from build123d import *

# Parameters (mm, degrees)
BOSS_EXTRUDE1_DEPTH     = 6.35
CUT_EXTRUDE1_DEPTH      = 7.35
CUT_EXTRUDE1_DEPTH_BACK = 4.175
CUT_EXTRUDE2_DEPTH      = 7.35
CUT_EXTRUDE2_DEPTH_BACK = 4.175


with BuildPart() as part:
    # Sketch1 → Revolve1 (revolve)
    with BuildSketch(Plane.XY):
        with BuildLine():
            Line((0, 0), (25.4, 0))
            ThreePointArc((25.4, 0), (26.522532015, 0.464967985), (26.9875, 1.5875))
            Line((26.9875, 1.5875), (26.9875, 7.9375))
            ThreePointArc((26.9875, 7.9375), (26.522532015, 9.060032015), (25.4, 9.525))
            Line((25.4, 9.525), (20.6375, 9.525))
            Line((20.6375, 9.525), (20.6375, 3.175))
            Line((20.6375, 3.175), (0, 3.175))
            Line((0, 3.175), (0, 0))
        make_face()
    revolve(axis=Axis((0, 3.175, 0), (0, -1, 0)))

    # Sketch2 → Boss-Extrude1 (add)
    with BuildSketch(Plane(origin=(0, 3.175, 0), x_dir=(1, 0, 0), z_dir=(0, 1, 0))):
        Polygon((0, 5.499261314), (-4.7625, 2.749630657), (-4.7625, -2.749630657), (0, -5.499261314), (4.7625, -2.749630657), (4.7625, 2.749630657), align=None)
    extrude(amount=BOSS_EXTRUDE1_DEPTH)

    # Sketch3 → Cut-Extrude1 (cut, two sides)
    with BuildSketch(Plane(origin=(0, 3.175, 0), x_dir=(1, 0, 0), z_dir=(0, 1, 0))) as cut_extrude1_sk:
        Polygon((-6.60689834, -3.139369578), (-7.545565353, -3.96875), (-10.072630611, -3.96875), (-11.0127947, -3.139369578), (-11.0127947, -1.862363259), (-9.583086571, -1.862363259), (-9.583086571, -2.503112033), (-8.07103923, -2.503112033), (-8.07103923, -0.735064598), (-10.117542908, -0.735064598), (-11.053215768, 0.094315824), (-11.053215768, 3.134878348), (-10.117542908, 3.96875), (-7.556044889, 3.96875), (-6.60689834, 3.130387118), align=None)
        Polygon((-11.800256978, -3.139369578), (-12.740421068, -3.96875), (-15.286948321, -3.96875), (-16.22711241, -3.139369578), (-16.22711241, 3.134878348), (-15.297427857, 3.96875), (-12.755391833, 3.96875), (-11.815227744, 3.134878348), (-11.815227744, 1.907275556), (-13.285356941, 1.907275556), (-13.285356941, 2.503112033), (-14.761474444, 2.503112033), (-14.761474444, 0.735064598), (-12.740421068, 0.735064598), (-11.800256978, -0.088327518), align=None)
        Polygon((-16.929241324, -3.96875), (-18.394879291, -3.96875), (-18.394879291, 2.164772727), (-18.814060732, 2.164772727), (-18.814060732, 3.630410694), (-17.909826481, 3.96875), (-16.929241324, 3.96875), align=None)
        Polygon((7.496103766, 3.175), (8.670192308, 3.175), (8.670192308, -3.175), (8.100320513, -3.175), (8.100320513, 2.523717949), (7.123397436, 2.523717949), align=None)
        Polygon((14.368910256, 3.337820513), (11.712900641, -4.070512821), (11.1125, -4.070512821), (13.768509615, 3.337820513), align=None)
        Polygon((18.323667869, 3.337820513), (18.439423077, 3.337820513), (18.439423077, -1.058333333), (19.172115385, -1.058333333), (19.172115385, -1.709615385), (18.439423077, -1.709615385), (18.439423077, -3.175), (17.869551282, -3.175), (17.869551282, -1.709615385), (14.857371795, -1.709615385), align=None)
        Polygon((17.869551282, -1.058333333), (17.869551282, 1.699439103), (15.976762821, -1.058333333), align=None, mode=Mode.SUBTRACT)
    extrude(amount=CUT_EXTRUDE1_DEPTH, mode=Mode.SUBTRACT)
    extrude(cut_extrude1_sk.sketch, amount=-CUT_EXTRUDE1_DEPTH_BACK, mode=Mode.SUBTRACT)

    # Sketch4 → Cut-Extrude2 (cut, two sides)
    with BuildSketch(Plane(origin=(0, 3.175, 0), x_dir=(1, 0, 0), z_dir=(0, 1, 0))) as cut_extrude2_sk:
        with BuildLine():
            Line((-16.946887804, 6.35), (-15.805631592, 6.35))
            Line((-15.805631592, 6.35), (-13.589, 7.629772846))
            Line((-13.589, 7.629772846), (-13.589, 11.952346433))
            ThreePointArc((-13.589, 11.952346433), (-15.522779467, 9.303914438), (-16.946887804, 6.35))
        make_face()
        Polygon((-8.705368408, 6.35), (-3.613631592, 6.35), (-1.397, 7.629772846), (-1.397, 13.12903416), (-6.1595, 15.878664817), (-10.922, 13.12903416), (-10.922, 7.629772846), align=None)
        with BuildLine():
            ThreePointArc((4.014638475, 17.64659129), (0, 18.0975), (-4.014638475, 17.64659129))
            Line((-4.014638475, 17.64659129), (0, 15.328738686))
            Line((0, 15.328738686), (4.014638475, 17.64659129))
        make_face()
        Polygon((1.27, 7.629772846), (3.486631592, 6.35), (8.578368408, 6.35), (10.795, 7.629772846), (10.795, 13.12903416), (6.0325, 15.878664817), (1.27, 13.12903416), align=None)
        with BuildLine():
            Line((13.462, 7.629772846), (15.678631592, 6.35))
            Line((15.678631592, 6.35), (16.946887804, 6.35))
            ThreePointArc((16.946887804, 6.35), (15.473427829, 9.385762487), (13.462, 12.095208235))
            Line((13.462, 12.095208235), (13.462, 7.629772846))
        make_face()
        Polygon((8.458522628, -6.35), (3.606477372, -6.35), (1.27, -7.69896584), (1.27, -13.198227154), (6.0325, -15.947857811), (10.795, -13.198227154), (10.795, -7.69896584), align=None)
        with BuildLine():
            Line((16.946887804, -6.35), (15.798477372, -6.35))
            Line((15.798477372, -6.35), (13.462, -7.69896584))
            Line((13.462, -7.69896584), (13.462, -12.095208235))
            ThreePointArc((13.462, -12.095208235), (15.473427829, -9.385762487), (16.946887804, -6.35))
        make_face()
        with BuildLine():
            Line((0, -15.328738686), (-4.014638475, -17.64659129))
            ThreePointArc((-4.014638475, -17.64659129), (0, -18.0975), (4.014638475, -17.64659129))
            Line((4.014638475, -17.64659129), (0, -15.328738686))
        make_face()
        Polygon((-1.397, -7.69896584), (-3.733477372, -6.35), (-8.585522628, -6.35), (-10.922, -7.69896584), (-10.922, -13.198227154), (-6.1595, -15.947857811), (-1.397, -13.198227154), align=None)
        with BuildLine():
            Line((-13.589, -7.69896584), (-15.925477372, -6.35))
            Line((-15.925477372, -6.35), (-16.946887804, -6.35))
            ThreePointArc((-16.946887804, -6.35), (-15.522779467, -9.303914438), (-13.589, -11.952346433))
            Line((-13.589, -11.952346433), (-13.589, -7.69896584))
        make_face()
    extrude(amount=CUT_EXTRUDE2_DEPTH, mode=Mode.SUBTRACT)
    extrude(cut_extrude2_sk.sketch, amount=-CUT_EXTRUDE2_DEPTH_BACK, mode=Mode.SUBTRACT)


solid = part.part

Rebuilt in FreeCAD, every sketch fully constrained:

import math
import FreeCAD as App
import Part
import Sketcher
from FreeCAD import Vector
Q = App.Units.Quantity

doc = App.newDocument("Part")
params = doc.addObject("Spreadsheet::Sheet", "Params")
for row, (alias, value) in enumerate([
    ("sketch1_width", "1 in"),
    ("sketch1_radius", "0.0625 in"),
    ("sketch1_height", "0.25 in"),
    ("sketch1_width2", "0.1875 in"),
    ("revolution_angle", "360 deg"),
    ("pad1_length", "0.25 in"),
    ("sketch3_height", "0.25 in"),
    ("sketch3_height2", "0.3125 in"),
], start=1):
    params.set(f"A{row}", alias)
    params.set(f"B{row}", "=" + value)
    params.setAlias(f"B{row}", alias)

body = doc.addObject("PartDesign::Body", "Body")
body.AllowCompound = True

# Sketch on XY plane
sketch1 = body.newObject("Sketcher::SketchObject", "Sketch")
sketch1.AttachmentSupport = (doc.getObject("XY_Plane"), [""])
sketch1.MapMode = "FlatFace"
sketch1.addGeometry([
    Part.LineSegment(Vector(0, 0, 0), Vector(25.4, 0, 0)),  # 0
    Part.ArcOfCircle(Part.Circle(Vector(25.4, 1.5875, 0), Vector(0, 0, 1), 1.5875), math.radians(-90), math.radians(0)),  # 1
    Part.LineSegment(Vector(26.9875, 1.5875, 0), Vector(26.9875, 7.9375, 0)),  # 2
    Part.ArcOfCircle(Part.Circle(Vector(25.4, 7.9375, 0), Vector(0, 0, 1), 1.5875), math.radians(0), math.radians(90)),  # 3
    Part.LineSegment(Vector(25.4, 9.525, 0), Vector(20.6375, 9.525, 0)),  # 4
    Part.LineSegment(Vector(20.6375, 9.525, 0), Vector(20.6375, 3.175, 0)),  # 5
    Part.LineSegment(Vector(20.6375, 3.175, 0), Vector(0, 3.175, 0)),  # 6
    Part.LineSegment(Vector(0, 3.175, 0), Vector(0, 0, 0)),  # 7
], False)
sketch1.addConstraint([
    Sketcher.Constraint("Tangent", 0, 2, 1, 1),
    Sketcher.Constraint("Tangent", 1, 2, 2, 1),
    Sketcher.Constraint("Tangent", 2, 2, 3, 1),
    Sketcher.Constraint("Tangent", 3, 2, 4, 1),
    Sketcher.Constraint("Coincident", 4, 2, 5, 1),
    Sketcher.Constraint("Coincident", 5, 2, 6, 1),
    Sketcher.Constraint("Coincident", 6, 2, 7, 1),
    Sketcher.Constraint("Coincident", 7, 2, 0, 1),
    Sketcher.Constraint("Horizontal", 0),
    Sketcher.Constraint("Vertical", 2),
    Sketcher.Constraint("Horizontal", 4),
    Sketcher.Constraint("Vertical", 5),
    Sketcher.Constraint("Horizontal", 6),
    Sketcher.Constraint("Vertical", 7),
    Sketcher.Constraint("Coincident", 7, 2, -1, 1),
    Sketcher.Constraint("Equal", 1, 3),
    Sketcher.Constraint("Equal", 2, 5),
    Sketcher.Constraint("DistanceX", 0, 1, 0, 2, Q("1 in")),
    Sketcher.Constraint("Radius", 1, Q("0.0625 in")),
    Sketcher.Constraint("DistanceY", 2, 1, 2, 2, Q("0.25 in")),
    Sketcher.Constraint("DistanceX", 4, 2, 4, 1, Q("0.1875 in")),
])
sketch1.setExpression("Constraints[17]", "Params.sketch1_width")
sketch1.setExpression("Constraints[18]", "Params.sketch1_radius")
sketch1.setExpression("Constraints[19]", "Params.sketch1_height")
sketch1.setExpression("Constraints[20]", "Params.sketch1_width2")
revolution = body.newObject("PartDesign::Revolution", "Revolution")
revolution.Profile = sketch1
revolution.ReferenceAxis = (sketch1, ["V_Axis"])
revolution.setExpression("Angle", "Params.revolution_angle")

# Sketch on XZ plane
sketch2 = body.newObject("Sketcher::SketchObject", "Sketch001")
sketch2.AttachmentSupport = (doc.getObject("XZ_Plane"), [""])
sketch2.MapMode = "FlatFace"
sketch2.AttachmentOffset = App.Placement(Vector(0, 0, -0.125 * 25.4), App.Rotation())
sketch2.addGeometry([
    Part.LineSegment(Vector(0, -5.499261, 0), Vector(-4.7625, -2.749631, 0)),  # 0
    Part.LineSegment(Vector(-4.7625, -2.749631, 0), Vector(-4.7625, 2.749631, 0)),  # 1
    Part.LineSegment(Vector(-4.7625, 2.749631, 0), Vector(0, 5.499261, 0)),  # 2
    Part.LineSegment(Vector(0, 5.499261, 0), Vector(4.7625, 2.749631, 0)),  # 3
    Part.LineSegment(Vector(4.7625, 2.749631, 0), Vector(4.7625, -2.749631, 0)),  # 4
    Part.LineSegment(Vector(4.7625, -2.749631, 0), Vector(0, -5.499261, 0)),  # 5
], False)
sketch2.addConstraint([
    Sketcher.Constraint("Coincident", 0, 2, 1, 1),
    Sketcher.Constraint("Coincident", 1, 2, 2, 1),
    Sketcher.Constraint("Coincident", 2, 2, 3, 1),
    Sketcher.Constraint("Coincident", 3, 2, 4, 1),
    Sketcher.Constraint("Coincident", 4, 2, 5, 1),
    Sketcher.Constraint("Coincident", 5, 2, 0, 1),
    Sketcher.Constraint("Vertical", 1),
    Sketcher.Constraint("Vertical", 4),
    Sketcher.Constraint("Symmetric", 0, 2, 3, 2, -1, 1),
    Sketcher.Constraint("Symmetric", 2, 2, 5, 2, -1, 1),
    Sketcher.Constraint("PointOnObject", 2, 2, -2),
    Sketcher.Constraint("Parallel", 2, 5),
    Sketcher.Constraint("Horizontal", 1, 2, 3, 2),
    Sketcher.Constraint("Angle", 0, Q("150 deg")),
    Sketcher.Constraint("DistanceX", 0, 2, -1, 1, Q("0.1875 in")),
    Sketcher.Constraint("DistanceY", 1, 1, 1, 2, Q("5.499261 mm")),
])
pad1 = body.newObject("PartDesign::Pad", "Pad")
pad1.Profile = sketch2
pad1.setExpression("Length", "Params.pad1_length")
pad1.Reversed = True

# Sketch on XZ plane
sketch3 = body.newObject("Sketcher::SketchObject", "Sketch002")
sketch3.AttachmentSupport = (doc.getObject("XZ_Plane"), [""])
sketch3.MapMode = "FlatFace"
sketch3.AttachmentOffset = App.Placement(Vector(0, 0, -0.125 * 25.4), App.Rotation())
sketch3.addGeometry([
    Part.LineSegment(Vector(-7.545565, 3.96875, 0), Vector(-6.606898, 3.13937, 0)),  # 0
    Part.LineSegment(Vector(-6.606898, 3.13937, 0), Vector(-6.606898, -3.130387, 0)),  # 1
    Part.LineSegment(Vector(-6.606898, -3.130387, 0), Vector(-7.556045, -3.96875, 0)),  # 2
    Part.LineSegment(Vector(-7.556045, -3.96875, 0), Vector(-10.117543, -3.96875, 0)),  # 3
    Part.LineSegment(Vector(-10.117543, -3.96875, 0), Vector(-11.053216, -3.134878, 0)),  # 4
    Part.LineSegment(Vector(-11.053216, -3.134878, 0), Vector(-11.053216, -0.094316, 0)),  # 5
    Part.LineSegment(Vector(-11.053216, -0.094316, 0), Vector(-10.117543, 0.735065, 0)),  # 6
    Part.LineSegment(Vector(-10.117543, 0.735065, 0), Vector(-8.071039, 0.735065, 0)),  # 7
    Part.LineSegment(Vector(-8.071039, 0.735065, 0), Vector(-8.071039, 2.503112, 0)),  # 8
    Part.LineSegment(Vector(-8.071039, 2.503112, 0), Vector(-9.583087, 2.503112, 0)),  # 9
    Part.LineSegment(Vector(-9.583087, 2.503112, 0), Vector(-9.583087, 1.862363, 0)),  # 10
    Part.LineSegment(Vector(-9.583087, 1.862363, 0), Vector(-11.012795, 1.862363, 0)),  # 11
    Part.LineSegment(Vector(-11.012795, 1.862363, 0), Vector(-11.012795, 3.13937, 0)),  # 12
    Part.LineSegment(Vector(-11.012795, 3.13937, 0), Vector(-10.072631, 3.96875, 0)),  # 13
    Part.LineSegment(Vector(-10.072631, 3.96875, 0), Vector(-7.545565, 3.96875, 0)),  # 14
    Part.LineSegment(Vector(-12.740421, 3.96875, 0), Vector(-11.800257, 3.13937, 0)),  # 15
    Part.LineSegment(Vector(-11.800257, 3.13937, 0), Vector(-11.800257, 0.088328, 0)),  # 16
    Part.LineSegment(Vector(-11.800257, 0.088328, 0), Vector(-12.740421, -0.735065, 0)),  # 17
    Part.LineSegment(Vector(-12.740421, -0.735065, 0), Vector(-14.761474, -0.735065, 0)),  # 18
    Part.LineSegment(Vector(-14.761474, -0.735065, 0), Vector(-14.761474, -2.503112, 0)),  # 19
    Part.LineSegment(Vector(-14.761474, -2.503112, 0), Vector(-13.285357, -2.503112, 0)),  # 20
    Part.LineSegment(Vector(-13.285357, -2.503112, 0), Vector(-13.285357, -1.907276, 0)),  # 21
    Part.LineSegment(Vector(-13.285357, -1.907276, 0), Vector(-11.815228, -1.907276, 0)),  # 22
    Part.LineSegment(Vector(-11.815228, -1.907276, 0), Vector(-11.815228, -3.134878, 0)),  # 23
    Part.LineSegment(Vector(-11.815228, -3.134878, 0), Vector(-12.755392, -3.96875, 0)),  # 24
    Part.LineSegment(Vector(-12.755392, -3.96875, 0), Vector(-15.297428, -3.96875, 0)),  # 25
    Part.LineSegment(Vector(-15.297428, -3.96875, 0), Vector(-16.227112, -3.134878, 0)),  # 26
    Part.LineSegment(Vector(-16.227112, -3.134878, 0), Vector(-16.227112, 3.13937, 0)),  # 27
    Part.LineSegment(Vector(-16.227112, 3.13937, 0), Vector(-15.286948, 3.96875, 0)),  # 28
    Part.LineSegment(Vector(-15.286948, 3.96875, 0), Vector(-12.740421, 3.96875, 0)),  # 29
    Part.LineSegment(Vector(-18.394879, 3.96875, 0), Vector(-16.929241, 3.96875, 0)),  # 30
    Part.LineSegment(Vector(-16.929241, 3.96875, 0), Vector(-16.929241, -3.96875, 0)),  # 31
    Part.LineSegment(Vector(-16.929241, -3.96875, 0), Vector(-17.909826, -3.96875, 0)),  # 32
    Part.LineSegment(Vector(-17.909826, -3.96875, 0), Vector(-18.814061, -3.630411, 0)),  # 33
    Part.LineSegment(Vector(-18.814061, -3.630411, 0), Vector(-18.814061, -2.164773, 0)),  # 34
    Part.LineSegment(Vector(-18.814061, -2.164773, 0), Vector(-18.394879, -2.164773, 0)),  # 35
    Part.LineSegment(Vector(-18.394879, -2.164773, 0), Vector(-18.394879, 3.96875, 0)),  # 36
    Part.LineSegment(Vector(8.670192, -3.175, 0), Vector(7.496104, -3.175, 0)),  # 37
    Part.LineSegment(Vector(7.496104, -3.175, 0), Vector(7.123397, -2.523718, 0)),  # 38
    Part.LineSegment(Vector(7.123397, -2.523718, 0), Vector(8.100321, -2.523718, 0)),  # 39
    Part.LineSegment(Vector(8.100321, -2.523718, 0), Vector(8.100321, 3.175, 0)),  # 40
    Part.LineSegment(Vector(8.100321, 3.175, 0), Vector(8.670192, 3.175, 0)),  # 41
    Part.LineSegment(Vector(8.670192, 3.175, 0), Vector(8.670192, -3.175, 0)),  # 42
    Part.LineSegment(Vector(11.712901, 4.070513, 0), Vector(14.36891, -3.337821, 0)),  # 43
    Part.LineSegment(Vector(14.36891, -3.337821, 0), Vector(13.76851, -3.337821, 0)),  # 44
    Part.LineSegment(Vector(13.76851, -3.337821, 0), Vector(11.1125, 4.070513, 0)),  # 45
    Part.LineSegment(Vector(11.1125, 4.070513, 0), Vector(11.712901, 4.070513, 0)),  # 46
    Part.LineSegment(Vector(18.439423, -3.337821, 0), Vector(18.323668, -3.337821, 0)),  # 47
    Part.LineSegment(Vector(18.323668, -3.337821, 0), Vector(14.857372, 1.709615, 0)),  # 48
    Part.LineSegment(Vector(14.857372, 1.709615, 0), Vector(17.869551, 1.709615, 0)),  # 49
    Part.LineSegment(Vector(17.869551, 1.709615, 0), Vector(17.869551, 3.175, 0)),  # 50
    Part.LineSegment(Vector(17.869551, 3.175, 0), Vector(18.439423, 3.175, 0)),  # 51
    Part.LineSegment(Vector(18.439423, 3.175, 0), Vector(18.439423, 1.709615, 0)),  # 52
    Part.LineSegment(Vector(18.439423, 1.709615, 0), Vector(19.172115, 1.709615, 0)),  # 53
    Part.LineSegment(Vector(19.172115, 1.709615, 0), Vector(19.172115, 1.058333, 0)),  # 54
    Part.LineSegment(Vector(19.172115, 1.058333, 0), Vector(18.439423, 1.058333, 0)),  # 55
    Part.LineSegment(Vector(18.439423, 1.058333, 0), Vector(18.439423, -3.337821, 0)),  # 56
    Part.LineSegment(Vector(17.869551, 1.058333, 0), Vector(15.976763, 1.058333, 0)),  # 57
    Part.LineSegment(Vector(15.976763, 1.058333, 0), Vector(17.869551, -1.699439, 0)),  # 58
    Part.LineSegment(Vector(17.869551, -1.699439, 0), Vector(17.869551, 1.058333, 0)),  # 59
], False)
sketch3.addConstraint([
    Sketcher.Constraint("Coincident", 0, 2, 1, 1),
    Sketcher.Constraint("Coincident", 1, 2, 2, 1),
    Sketcher.Constraint("Coincident", 2, 2, 3, 1),
    Sketcher.Constraint("Coincident", 3, 2, 4, 1),
    Sketcher.Constraint("Coincident", 4, 2, 5, 1),
    Sketcher.Constraint("Coincident", 5, 2, 6, 1),
    Sketcher.Constraint("Coincident", 6, 2, 7, 1),
    Sketcher.Constraint("Coincident", 7, 2, 8, 1),
    Sketcher.Constraint("Coincident", 8, 2, 9, 1),
    Sketcher.Constraint("Coincident", 9, 2, 10, 1),
    Sketcher.Constraint("Coincident", 10, 2, 11, 1),
    Sketcher.Constraint("Coincident", 11, 2, 12, 1),
    Sketcher.Constraint("Coincident", 12, 2, 13, 1),
    Sketcher.Constraint("Coincident", 13, 2, 14, 1),
    Sketcher.Constraint("Coincident", 14, 2, 0, 1),
    Sketcher.Constraint("Coincident", 15, 2, 16, 1),
    Sketcher.Constraint("Coincident", 16, 2, 17, 1),
    Sketcher.Constraint("Coincident", 17, 2, 18, 1),
    Sketcher.Constraint("Coincident", 18, 2, 19, 1),
    Sketcher.Constraint("Coincident", 19, 2, 20, 1),
    Sketcher.Constraint("Coincident", 20, 2, 21, 1),
    Sketcher.Constraint("Coincident", 21, 2, 22, 1),
    Sketcher.Constraint("Coincident", 22, 2, 23, 1),
    Sketcher.Constraint("Coincident", 23, 2, 24, 1),
    Sketcher.Constraint("Coincident", 24, 2, 25, 1),
    Sketcher.Constraint("Coincident", 25, 2, 26, 1),
    Sketcher.Constraint("Coincident", 26, 2, 27, 1),
    Sketcher.Constraint("Coincident", 27, 2, 28, 1),
    Sketcher.Constraint("Coincident", 28, 2, 29, 1),
    Sketcher.Constraint("Coincident", 29, 2, 15, 1),
    Sketcher.Constraint("Coincident", 30, 2, 31, 1),
    Sketcher.Constraint("Coincident", 31, 2, 32, 1),
    Sketcher.Constraint("Coincident", 32, 2, 33, 1),
    Sketcher.Constraint("Coincident", 33, 2, 34, 1),
    Sketcher.Constraint("Coincident", 34, 2, 35, 1),
    Sketcher.Constraint("Coincident", 35, 2, 36, 1),
    Sketcher.Constraint("Coincident", 36, 2, 30, 1),
    Sketcher.Constraint("Coincident", 37, 2, 38, 1),
    Sketcher.Constraint("Coincident", 38, 2, 39, 1),
    Sketcher.Constraint("Coincident", 39, 2, 40, 1),
    Sketcher.Constraint("Coincident", 40, 2, 41, 1),
    Sketcher.Constraint("Coincident", 41, 2, 42, 1),
    Sketcher.Constraint("Coincident", 42, 2, 37, 1),
    Sketcher.Constraint("Coincident", 43, 2, 44, 1),
    Sketcher.Constraint("Coincident", 44, 2, 45, 1),
    Sketcher.Constraint("Coincident", 45, 2, 46, 1),
    Sketcher.Constraint("Coincident", 46, 2, 43, 1),
    Sketcher.Constraint("Coincident", 47, 2, 48, 1),
    Sketcher.Constraint("Coincident", 48, 2, 49, 1),
    Sketcher.Constraint("Coincident", 49, 2, 50, 1),
    Sketcher.Constraint("Coincident", 50, 2, 51, 1),
    Sketcher.Constraint("Coincident", 51, 2, 52, 1),
    Sketcher.Constraint("Coincident", 52, 2, 53, 1),
    Sketcher.Constraint("Coincident", 53, 2, 54, 1),
    Sketcher.Constraint("Coincident", 54, 2, 55, 1),
    Sketcher.Constraint("Coincident", 55, 2, 56, 1),
    Sketcher.Constraint("Coincident", 56, 2, 47, 1),
    Sketcher.Constraint("Coincident", 57, 2, 58, 1),
    Sketcher.Constraint("Coincident", 58, 2, 59, 1),
    Sketcher.Constraint("Coincident", 59, 2, 57, 1),
    Sketcher.Constraint("Vertical", 1),
    Sketcher.Constraint("Horizontal", 3),
    Sketcher.Constraint("Vertical", 5),
    Sketcher.Constraint("Horizontal", 7),
    Sketcher.Constraint("Vertical", 8),
    Sketcher.Constraint("Horizontal", 9),
    Sketcher.Constraint("Vertical", 10),
    Sketcher.Constraint("Horizontal", 11),
    Sketcher.Constraint("Vertical", 12),
    Sketcher.Constraint("Horizontal", 14),
    Sketcher.Constraint("Vertical", 16),
    Sketcher.Constraint("Horizontal", 18),
    Sketcher.Constraint("Vertical", 19),
    Sketcher.Constraint("Horizontal", 20),
    Sketcher.Constraint("Vertical", 21),
    Sketcher.Constraint("Horizontal", 22),
    Sketcher.Constraint("Vertical", 23),
    Sketcher.Constraint("Horizontal", 25),
    Sketcher.Constraint("Vertical", 27),
    Sketcher.Constraint("Horizontal", 29),
    Sketcher.Constraint("Horizontal", 30),
    Sketcher.Constraint("Vertical", 31),
    Sketcher.Constraint("Horizontal", 32),
    Sketcher.Constraint("Vertical", 34),
    Sketcher.Constraint("Horizontal", 35),
    Sketcher.Constraint("Vertical", 36),
    Sketcher.Constraint("Horizontal", 37),
    Sketcher.Constraint("Horizontal", 39),
    Sketcher.Constraint("Vertical", 40),
    Sketcher.Constraint("Horizontal", 41),
    Sketcher.Constraint("Vertical", 42),
    Sketcher.Constraint("Horizontal", 44),
    Sketcher.Constraint("Horizontal", 46),
    Sketcher.Constraint("Horizontal", 47),
    Sketcher.Constraint("Horizontal", 49),
    Sketcher.Constraint("Vertical", 50),
    Sketcher.Constraint("Horizontal", 51),
    Sketcher.Constraint("Vertical", 52),
    Sketcher.Constraint("Horizontal", 53),
    Sketcher.Constraint("Vertical", 54),
    Sketcher.Constraint("Horizontal", 55),
    Sketcher.Constraint("Vertical", 56),
    Sketcher.Constraint("Horizontal", 57),
    Sketcher.Constraint("Vertical", 59),
    Sketcher.Constraint("Parallel", 13, 28),
    Sketcher.Constraint("Parallel", 43, 45),
    Sketcher.Constraint("Horizontal", 0, 2, 12, 2),
    Sketcher.Constraint("Horizontal", 12, 2, 15, 2),
    Sketcher.Constraint("Horizontal", 4, 2, 23, 2),
    Sketcher.Constraint("Horizontal", 3, 2, 24, 2),
    Sketcher.Constraint("Horizontal", 23, 2, 26, 2),
    Sketcher.Constraint("Horizontal", 15, 2, 27, 2),
    Sketcher.Constraint("Horizontal", 14, 2, 28, 2),
    Sketcher.Constraint("Horizontal", 29, 2, 30, 2),
    Sketcher.Constraint("Horizontal", 25, 2, 31, 2),
    Sketcher.Constraint("Horizontal", 44, 2, 47, 2),
    Sketcher.Constraint("Horizontal", 41, 2, 50, 2),
    Sketcher.Constraint("Horizontal", 49, 2, 52, 2),
    Sketcher.Constraint("Horizontal", 55, 2, 57, 2),
    Sketcher.Constraint("Vertical", 3, 2, 6, 2),
    Sketcher.Constraint("Vertical", 17, 2, 29, 2),
    Sketcher.Constraint("Vertical", 52, 2, 55, 2),
    Sketcher.Constraint("Vertical", 50, 2, 58, 2),
    Sketcher.Constraint("Equal", 41, 51),
    Sketcher.Constraint("Equal", 8, 19),
    Sketcher.Constraint("Equal", 30, 34),
    Sketcher.Constraint("Equal", 13, 15),
    Sketcher.Constraint("DistanceY", 42, 2, 42, 1, Q("0.25 in")),
    Sketcher.Constraint("DistanceY", 31, 2, 31, 1, Q("0.3125 in")),
    Sketcher.Constraint("DistanceY", 2, 2, -1, 1, Q("0.15625 in")),
    Sketcher.Constraint("DistanceY", 37, 2, -1, 1, Q("0.125 in")),
    Sketcher.Constraint("DistanceX", -1, 1, 45, 2, Q("0.4375 in")),
    Sketcher.Constraint("DistanceX", 3, 2, 3, 1, Q("2.561498 mm")),
    Sketcher.Constraint("DistanceX", 44, 2, 44, 1, Q("0.600401 mm")),
    Sketcher.Constraint("DistanceX", 11, 2, 11, 1, Q("1.429708 mm")),
    Sketcher.Constraint("DistanceX", 22, 1, 22, 2, Q("1.470129 mm")),
    Sketcher.Constraint("DistanceX", 35, 1, 35, 2, Q("0.419181 mm")),
    Sketcher.Constraint("DistanceX", 37, 2, 37, 1, Q("1.174089 mm")),
    Sketcher.Constraint("DistanceX", 41, 1, 41, 2, Q("0.569872 mm")),
    Sketcher.Constraint("DistanceX", 49, 1, 49, 2, Q("3.012179 mm")),
    Sketcher.Constraint("DistanceX", 57, 2, 57, 1, Q("1.892788 mm")),
    Sketcher.Constraint("DistanceY", 10, 2, 10, 1, Q("0.640749 mm")),
    Sketcher.Constraint("DistanceX", 0, 2, -1, 1, Q("6.606898 mm")),
    Sketcher.Constraint("DistanceY", 1, 2, 8, 2, Q("5.633499 mm")),
    Sketcher.Constraint("DistanceY", 6, 2, 10, 2, Q("1.127299 mm")),
    Sketcher.Constraint("DistanceX", 20, 2, 16, 2, Q("1.4851 mm")),
    Sketcher.Constraint("DistanceX", 32, 2, 25, 2, Q("2.612399 mm")),
    Sketcher.Constraint("DistanceY", 33, 2, 19, 2, Q("1.127299 mm")),
    Sketcher.Constraint("Distance", 26, Q("1.248862 mm")),
    Sketcher.Constraint("Distance", 33, Q("0.96546 mm")),
    Sketcher.Constraint("Distance", 58, Q("3.34484 mm")),
    Sketcher.Constraint("DistanceX", 7, 1, 7, 2, Q("2.046504 mm")),
    Sketcher.Constraint("DistanceX", 9, 2, 9, 1, Q("1.512047 mm")),
    Sketcher.Constraint("DistanceX", 14, 1, 14, 2, Q("2.527065 mm")),
    Sketcher.Constraint("DistanceX", 18, 2, 18, 1, Q("2.021053 mm")),
    Sketcher.Constraint("DistanceX", 20, 1, 20, 2, Q("1.476118 mm")),
    Sketcher.Constraint("DistanceX", 25, 2, 25, 1, Q("2.542036 mm")),
    Sketcher.Constraint("DistanceX", 29, 1, 29, 2, Q("2.546527 mm")),
    Sketcher.Constraint("DistanceX", 30, 1, 30, 2, Q("1.465638 mm")),
    Sketcher.Constraint("DistanceX", 32, 2, 32, 1, Q("0.980585 mm")),
    Sketcher.Constraint("DistanceX", 39, 1, 39, 2, Q("0.976923 mm")),
    Sketcher.Constraint("DistanceX", 47, 2, 47, 1, Q("0.115755 mm")),
    Sketcher.Constraint("DistanceX", 53, 1, 53, 2, Q("0.732692 mm")),
    Sketcher.Constraint("DistanceY", 1, 2, 1, 1, Q("6.269757 mm")),
    Sketcher.Constraint("DistanceY", 5, 1, 5, 2, Q("3.040563 mm")),
    Sketcher.Constraint("DistanceY", 16, 2, 16, 1, Q("3.051042 mm")),
    Sketcher.Constraint("DistanceY", 21, 1, 21, 2, Q("0.595836 mm")),
    Sketcher.Constraint("DistanceY", 23, 2, 23, 1, Q("1.227603 mm")),
    Sketcher.Constraint("DistanceY", 27, 1, 27, 2, Q("6.274248 mm")),
    Sketcher.Constraint("DistanceY", 40, 1, 40, 2, Q("5.698718 mm")),
    Sketcher.Constraint("DistanceY", 50, 1, 50, 2, Q("1.465385 mm")),
    Sketcher.Constraint("DistanceY", 54, 2, 54, 1, Q("0.651282 mm")),
    Sketcher.Constraint("DistanceY", 56, 2, 56, 1, Q("4.396154 mm")),
    Sketcher.Constraint("DistanceX", 7, 2, -1, 1, Q("8.071039 mm")),
    Sketcher.Constraint("DistanceX", 17, 2, -1, 1, Q("12.740421 mm")),
    Sketcher.Constraint("DistanceX", -1, 1, 39, 2, Q("8.100321 mm")),
    Sketcher.Constraint("DistanceX", -1, 1, 43, 2, Q("14.36891 mm")),
    Sketcher.Constraint("DistanceX", -1, 1, 48, 2, Q("14.857372 mm")),
    Sketcher.Constraint("DistanceX", 4, 2, 2, 2, Q("3.497171 mm")),
    Sketcher.Constraint("DistanceY", 39, 2, 45, 2, Q("6.594231 mm")),
])
sketch3.setExpression("Constraints[127]", "Params.sketch3_height")
sketch3.setExpression("Constraints[128]", "Params.sketch3_height2")
pocket1 = body.newObject("PartDesign::Pocket", "Pocket")
pocket1.Profile = sketch3
pocket1.Type = "ThroughAll"
pocket1.Midplane = True

# Sketch on XZ plane
sketch4 = body.newObject("Sketcher::SketchObject", "Sketch003")
sketch4.AttachmentSupport = (doc.getObject("XZ_Plane"), [""])
sketch4.MapMode = "FlatFace"
sketch4.AttachmentOffset = App.Placement(Vector(0, 0, -0.125 * 25.4), App.Rotation())
sketch4.addGeometry([
    Part.LineSegment(Vector(-16.946888, -6.35, 0), Vector(-15.805632, -6.35, 0)),  # 0
    Part.LineSegment(Vector(-15.805632, -6.35, 0), Vector(-13.589, -7.629773, 0)),  # 1
    Part.LineSegment(Vector(-13.589, -7.629773, 0), Vector(-13.589, -11.952346, 0)),  # 2
    Part.ArcOfCircle(Part.Circle(Vector(0, 0, 0), Vector(0, 0, 1), 18.0975), math.radians(-159.459022), math.radians(-138.66642)),  # 3
    Part.LineSegment(Vector(-8.705368, -6.35, 0), Vector(-3.613632, -6.35, 0)),  # 4
    Part.LineSegment(Vector(-3.613632, -6.35, 0), Vector(-1.397, -7.629773, 0)),  # 5
    Part.LineSegment(Vector(-1.397, -7.629773, 0), Vector(-1.397, -13.129034, 0)),  # 6
    Part.LineSegment(Vector(-1.397, -13.129034, 0), Vector(-6.1595, -15.878665, 0)),  # 7
    Part.LineSegment(Vector(-6.1595, -15.878665, 0), Vector(-10.922, -13.129034, 0)),  # 8
    Part.LineSegment(Vector(-10.922, -13.129034, 0), Vector(-10.922, -7.629773, 0)),  # 9
    Part.LineSegment(Vector(-10.922, -7.629773, 0), Vector(-8.705368, -6.35, 0)),  # 10
    Part.ArcOfCircle(Part.Circle(Vector(0, 0, 0), Vector(0, 0, 1), 18.0975), math.radians(-102.816768), math.radians(-77.183232)),  # 11
    Part.LineSegment(Vector(-4.014638, -17.646591, 0), Vector(0, -15.328739, 0)),  # 12
    Part.LineSegment(Vector(0, -15.328739, 0), Vector(4.014638, -17.646591, 0)),  # 13
    Part.LineSegment(Vector(1.27, -7.629773, 0), Vector(3.486632, -6.35, 0)),  # 14
    Part.LineSegment(Vector(3.486632, -6.35, 0), Vector(8.578368, -6.35, 0)),  # 15
    Part.LineSegment(Vector(8.578368, -6.35, 0), Vector(10.795, -7.629773, 0)),  # 16
    Part.LineSegment(Vector(10.795, -7.629773, 0), Vector(10.795, -13.129034, 0)),  # 17
    Part.LineSegment(Vector(10.795, -13.129034, 0), Vector(6.0325, -15.878665, 0)),  # 18
    Part.LineSegment(Vector(6.0325, -15.878665, 0), Vector(1.27, -13.129034, 0)),  # 19
    Part.LineSegment(Vector(1.27, -13.129034, 0), Vector(1.27, -7.629773, 0)),  # 20
    Part.LineSegment(Vector(13.462, -7.629773, 0), Vector(15.678632, -6.35, 0)),  # 21
    Part.LineSegment(Vector(15.678632, -6.35, 0), Vector(16.946888, -6.35, 0)),  # 22
    Part.ArcOfCircle(Part.Circle(Vector(0, 0, 0), Vector(0, 0, 1), 18.0975), math.radians(-41.938755), math.radians(-20.540978)),  # 23
    Part.LineSegment(Vector(13.462, -12.095208, 0), Vector(13.462, -7.629773, 0)),  # 24
    Part.LineSegment(Vector(8.458523, 6.35, 0), Vector(3.606477, 6.35, 0)),  # 25
    Part.LineSegment(Vector(3.606477, 6.35, 0), Vector(1.27, 7.698966, 0)),  # 26
    Part.LineSegment(Vector(1.27, 7.698966, 0), Vector(1.27, 13.198227, 0)),  # 27
    Part.LineSegment(Vector(1.27, 13.198227, 0), Vector(6.0325, 15.947858, 0)),  # 28
    Part.LineSegment(Vector(6.0325, 15.947858, 0), Vector(10.795, 13.198227, 0)),  # 29
    Part.LineSegment(Vector(10.795, 13.198227, 0), Vector(10.795, 7.698966, 0)),  # 30
    Part.LineSegment(Vector(10.795, 7.698966, 0), Vector(8.458523, 6.35, 0)),  # 31
    Part.LineSegment(Vector(16.946888, 6.35, 0), Vector(15.798477, 6.35, 0)),  # 32
    Part.LineSegment(Vector(15.798477, 6.35, 0), Vector(13.462, 7.698966, 0)),  # 33
    Part.LineSegment(Vector(13.462, 7.698966, 0), Vector(13.462, 12.095208, 0)),  # 34
    Part.ArcOfCircle(Part.Circle(Vector(0, 0, 0), Vector(0, 0, 1), 18.0975), math.radians(20.540978), math.radians(41.938755)),  # 35
    Part.LineSegment(Vector(0, 15.328739, 0), Vector(-4.014638, 17.646591, 0)),  # 36
    Part.ArcOfCircle(Part.Circle(Vector(0, 0, 0), Vector(0, 0, 1), 18.0975), math.radians(77.183232), math.radians(102.816768)),  # 37
    Part.LineSegment(Vector(4.014638, 17.646591, 0), Vector(0, 15.328739, 0)),  # 38
    Part.LineSegment(Vector(-1.397, 7.698966, 0), Vector(-3.733477, 6.35, 0)),  # 39
    Part.LineSegment(Vector(-3.733477, 6.35, 0), Vector(-8.585523, 6.35, 0)),  # 40
    Part.LineSegment(Vector(-8.585523, 6.35, 0), Vector(-10.922, 7.698966, 0)),  # 41
    Part.LineSegment(Vector(-10.922, 7.698966, 0), Vector(-10.922, 13.198227, 0)),  # 42
    Part.LineSegment(Vector(-10.922, 13.198227, 0), Vector(-6.1595, 15.947858, 0)),  # 43
    Part.LineSegment(Vector(-6.1595, 15.947858, 0), Vector(-1.397, 13.198227, 0)),  # 44
    Part.LineSegment(Vector(-1.397, 13.198227, 0), Vector(-1.397, 7.698966, 0)),  # 45
    Part.LineSegment(Vector(-13.589, 7.698966, 0), Vector(-15.925477, 6.35, 0)),  # 46
    Part.LineSegment(Vector(-15.925477, 6.35, 0), Vector(-16.946888, 6.35, 0)),  # 47
    Part.ArcOfCircle(Part.Circle(Vector(0, 0, 0), Vector(0, 0, 1), 18.0975), math.radians(138.66642), math.radians(159.459022)),  # 48
    Part.LineSegment(Vector(-13.589, 11.952346, 0), Vector(-13.589, 7.698966, 0)),  # 49
], False)
sketch4.addConstraint([
    Sketcher.Constraint("Coincident", 0, 2, 1, 1),
    Sketcher.Constraint("Coincident", 1, 2, 2, 1),
    Sketcher.Constraint("Coincident", 2, 2, 3, 2),
    Sketcher.Constraint("Coincident", 3, 1, 0, 1),
    Sketcher.Constraint("Coincident", 4, 2, 5, 1),
    Sketcher.Constraint("Coincident", 5, 2, 6, 1),
    Sketcher.Constraint("Coincident", 6, 2, 7, 1),
    Sketcher.Constraint("Coincident", 7, 2, 8, 1),
    Sketcher.Constraint("Coincident", 8, 2, 9, 1),
    Sketcher.Constraint("Coincident", 9, 2, 10, 1),
    Sketcher.Constraint("Coincident", 10, 2, 4, 1),
    Sketcher.Constraint("Coincident", 11, 1, 12, 1),
    Sketcher.Constraint("Coincident", 12, 2, 13, 1),
    Sketcher.Constraint("Coincident", 13, 2, 11, 2),
    Sketcher.Constraint("Coincident", 14, 2, 15, 1),
    Sketcher.Constraint("Coincident", 15, 2, 16, 1),
    Sketcher.Constraint("Coincident", 16, 2, 17, 1),
    Sketcher.Constraint("Coincident", 17, 2, 18, 1),
    Sketcher.Constraint("Coincident", 18, 2, 19, 1),
    Sketcher.Constraint("Coincident", 19, 2, 20, 1),
    Sketcher.Constraint("Coincident", 20, 2, 14, 1),
    Sketcher.Constraint("Coincident", 21, 2, 22, 1),
    Sketcher.Constraint("Coincident", 22, 2, 23, 2),
    Sketcher.Constraint("Coincident", 23, 1, 24, 1),
    Sketcher.Constraint("Coincident", 24, 2, 21, 1),
    Sketcher.Constraint("Coincident", 25, 2, 26, 1),
    Sketcher.Constraint("Coincident", 26, 2, 27, 1),
    Sketcher.Constraint("Coincident", 27, 2, 28, 1),
    Sketcher.Constraint("Coincident", 28, 2, 29, 1),
    Sketcher.Constraint("Coincident", 29, 2, 30, 1),
    Sketcher.Constraint("Coincident", 30, 2, 31, 1),
    Sketcher.Constraint("Coincident", 31, 2, 25, 1),
    Sketcher.Constraint("Coincident", 32, 2, 33, 1),
    Sketcher.Constraint("Coincident", 33, 2, 34, 1),
    Sketcher.Constraint("Coincident", 34, 2, 35, 2),
    Sketcher.Constraint("Coincident", 35, 1, 32, 1),
    Sketcher.Constraint("Coincident", 36, 2, 37, 2),
    Sketcher.Constraint("Coincident", 37, 1, 38, 1),
    Sketcher.Constraint("Coincident", 38, 2, 36, 1),
    Sketcher.Constraint("Coincident", 39, 2, 40, 1),
    Sketcher.Constraint("Coincident", 40, 2, 41, 1),
    Sketcher.Constraint("Coincident", 41, 2, 42, 1),
    Sketcher.Constraint("Coincident", 42, 2, 43, 1),
    Sketcher.Constraint("Coincident", 43, 2, 44, 1),
    Sketcher.Constraint("Coincident", 44, 2, 45, 1),
    Sketcher.Constraint("Coincident", 45, 2, 39, 1),
    Sketcher.Constraint("Coincident", 46, 2, 47, 1),
    Sketcher.Constraint("Coincident", 47, 2, 48, 2),
    Sketcher.Constraint("Coincident", 48, 1, 49, 1),
    Sketcher.Constraint("Coincident", 49, 2, 46, 1),
    Sketcher.Constraint("Horizontal", 0),
    Sketcher.Constraint("Vertical", 2),
    Sketcher.Constraint("Horizontal", 4),
    Sketcher.Constraint("Vertical", 6),
    Sketcher.Constraint("Vertical", 9),
    Sketcher.Constraint("Horizontal", 15),
    Sketcher.Constraint("Vertical", 17),
    Sketcher.Constraint("Vertical", 20),
    Sketcher.Constraint("Horizontal", 22),
    Sketcher.Constraint("Vertical", 24),
    Sketcher.Constraint("Horizontal", 25),
    Sketcher.Constraint("Vertical", 27),
    Sketcher.Constraint("Vertical", 30),
    Sketcher.Constraint("Horizontal", 32),
    Sketcher.Constraint("Vertical", 34),
    Sketcher.Constraint("Horizontal", 40),
    Sketcher.Constraint("Vertical", 42),
    Sketcher.Constraint("Vertical", 45),
    Sketcher.Constraint("Horizontal", 47),
    Sketcher.Constraint("Vertical", 49),
    Sketcher.Constraint("Coincident", 3, 3, -1, 1),
    Sketcher.Constraint("Coincident", 11, 3, -1, 1),
    Sketcher.Constraint("Coincident", 23, 3, -1, 1),
    Sketcher.Constraint("Coincident", 35, 3, -1, 1),
    Sketcher.Constraint("Coincident", 37, 3, -1, 1),
    Sketcher.Constraint("Coincident", 48, 3, -1, 1),
    Sketcher.Constraint("Equal", 3, 11),
    Sketcher.Constraint("Equal", 11, 23),
    Sketcher.Constraint("Equal", 23, 35),
    Sketcher.Constraint("Equal", 35, 37),
    Sketcher.Constraint("Equal", 37, 48),
    Sketcher.Constraint("Symmetric", 12, 2, 38, 2, -1, 1),
    Sketcher.Constraint("PointOnObject", 12, 2, -2),
    Sketcher.Constraint("Parallel", 1, 5),
    Sketcher.Constraint("Parallel", 5, 8),
    Sketcher.Constraint("Parallel", 7, 10),
    Sketcher.Constraint("Parallel", 10, 12),
    Sketcher.Constraint("Parallel", 8, 13),
    Sketcher.Constraint("Parallel", 12, 14),
    Sketcher.Constraint("Parallel", 13, 16),
    Sketcher.Constraint("Parallel", 14, 18),
    Sketcher.Constraint("Parallel", 16, 19),
    Sketcher.Constraint("Parallel", 18, 21),
    Sketcher.Constraint("Parallel", 19, 26),
    Sketcher.Constraint("Parallel", 21, 28),
    Sketcher.Constraint("Parallel", 26, 29),
    Sketcher.Constraint("Parallel", 28, 31),
    Sketcher.Constraint("Parallel", 29, 33),
    Sketcher.Constraint("Parallel", 33, 36),
    Sketcher.Constraint("Parallel", 31, 38),
    Sketcher.Constraint("Parallel", 38, 39),
    Sketcher.Constraint("Parallel", 36, 41),
    Sketcher.Constraint("Parallel", 39, 43),
    Sketcher.Constraint("Parallel", 41, 44),
    Sketcher.Constraint("Parallel", 43, 46),
    Sketcher.Constraint("Horizontal", 3, 1, 4, 2),
    Sketcher.Constraint("Horizontal", 1, 2, 5, 2),
    Sketcher.Constraint("Horizontal", 6, 2, 8, 2),
    Sketcher.Constraint("Horizontal", 5, 2, 9, 2),
    Sketcher.Constraint("Horizontal", 11, 1, 13, 2),
    Sketcher.Constraint("Horizontal", 10, 2, 14, 2),
    Sketcher.Constraint("Horizontal", 9, 2, 16, 2),
    Sketcher.Constraint("Horizontal", 8, 2, 17, 2),
    Sketcher.Constraint("Horizontal", 7, 2, 18, 2),
    Sketcher.Constraint("Horizontal", 17, 2, 19, 2),
    Sketcher.Constraint("Horizontal", 16, 2, 20, 2),
    Sketcher.Constraint("Horizontal", 15, 2, 21, 2),
    Sketcher.Constraint("Horizontal", 20, 2, 24, 2),
    Sketcher.Constraint("Horizontal", 27, 2, 29, 2),
    Sketcher.Constraint("Horizontal", 26, 2, 30, 2),
    Sketcher.Constraint("Horizontal", 31, 2, 32, 2),
    Sketcher.Constraint("Horizontal", 30, 2, 33, 2),
    Sketcher.Constraint("Horizontal", 35, 1, 39, 2),
    Sketcher.Constraint("Horizontal", 33, 2, 41, 2),
    Sketcher.Constraint("Horizontal", 29, 2, 42, 2),
    Sketcher.Constraint("Horizontal", 28, 2, 43, 2),
    Sketcher.Constraint("Horizontal", 42, 2, 44, 2),
    Sketcher.Constraint("Horizontal", 41, 2, 45, 2),
    Sketcher.Constraint("Horizontal", 40, 2, 46, 2),
    Sketcher.Constraint("Horizontal", 45, 2, 49, 2),
    Sketcher.Constraint("Vertical", 20, 2, 26, 2),
    Sketcher.Constraint("Vertical", 18, 2, 28, 2),
    Sketcher.Constraint("Vertical", 24, 2, 33, 2),
    Sketcher.Constraint("Vertical", 22, 2, 35, 1),
    Sketcher.Constraint("Vertical", 9, 2, 41, 2),
    Sketcher.Constraint("Vertical", 2, 2, 48, 1),
    Sketcher.Constraint("Equal", 20, 27),
    Sketcher.Constraint("Angle", 1, Q("-30 deg")),
    Sketcher.Constraint("Radius", 3, Q("0.7125 in")),
    Sketcher.Constraint("DistanceY", 21, 2, 32, 2, Q("0.5 in")),
    Sketcher.Constraint("DistanceX", 8, 2, -1, 1, Q("0.43 in")),
    Sketcher.Constraint("DistanceX", -1, 1, 19, 2, Q("0.05 in")),
    Sketcher.Constraint("DistanceX", -1, 1, 23, 1, Q("0.53 in")),
    Sketcher.Constraint("DistanceX", 2, 2, 6, 2, Q("0.48 in")),
    Sketcher.Constraint("DistanceX", 1, 2, -1, 1, Q("0.535 in")),
    Sketcher.Constraint("DistanceX", 32, 2, 32, 1, Q("1.14841 mm")),
    Sketcher.Constraint("DistanceY", 6, 2, 6, 1, Q("5.499261 mm")),
    Sketcher.Constraint("DistanceX", 0, 1, 0, 2, Q("1.141256 mm")),
    Sketcher.Constraint("DistanceX", 11, 1, -1, 1, Q("4.014638 mm")),
])
pocket2 = body.newObject("PartDesign::Pocket", "Pocket001")
pocket2.Profile = sketch4
pocket2.Type = "ThroughAll"
pocket2.Midplane = True

doc.recompute()
